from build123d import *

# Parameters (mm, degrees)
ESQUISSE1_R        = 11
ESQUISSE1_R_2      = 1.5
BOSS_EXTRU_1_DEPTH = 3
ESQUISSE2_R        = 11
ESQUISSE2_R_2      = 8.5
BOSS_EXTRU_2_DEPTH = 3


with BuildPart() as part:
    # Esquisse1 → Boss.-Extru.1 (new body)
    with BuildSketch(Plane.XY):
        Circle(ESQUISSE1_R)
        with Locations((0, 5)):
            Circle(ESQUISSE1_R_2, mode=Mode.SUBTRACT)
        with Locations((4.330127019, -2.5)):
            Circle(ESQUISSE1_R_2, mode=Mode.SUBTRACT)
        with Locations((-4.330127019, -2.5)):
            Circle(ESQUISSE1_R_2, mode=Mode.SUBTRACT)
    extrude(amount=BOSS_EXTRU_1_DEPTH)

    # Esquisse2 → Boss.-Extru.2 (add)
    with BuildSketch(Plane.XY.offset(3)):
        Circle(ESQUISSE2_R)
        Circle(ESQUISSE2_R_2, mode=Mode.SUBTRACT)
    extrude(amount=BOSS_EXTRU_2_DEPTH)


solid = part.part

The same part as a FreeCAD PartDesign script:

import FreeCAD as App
import Part
import Sketcher
Q = App.Units.Quantity

doc = App.newDocument("Part")
body = doc.addObject("PartDesign::Body", "Body")

sketch1 = body.newObject("Sketcher::SketchObject", "Sketch")
sketch1.AttachmentSupport = (doc.getObject("XY_Plane"), [""])
sketch1.MapMode = "FlatFace"
sketch1.addGeometry(Part.Circle(App.Vector(0, 0, 0), App.Vector(0, 0, 1), 11), False)
sketch1.addGeometry(Part.Circle(App.Vector(-4.3, -2.5, 0), App.Vector(0, 0, 1), 1.5), False)
sketch1.addGeometry(Part.Circle(App.Vector(4.3, -2.5, 0), App.Vector(0, 0, 1), 1.5), False)
sketch1.addGeometry(Part.Circle(App.Vector(0, 5, 0), App.Vector(0, 0, 1), 1.5), False)
sketch1.addConstraint(Sketcher.Constraint("Coincident", 0, 3, -1, 1))
sketch1.addConstraint(Sketcher.Constraint("Equal", 1, 2))
sketch1.addConstraint(Sketcher.Constraint("Equal", 2, 3))
sketch1.addConstraint(Sketcher.Constraint("Symmetric", 1, 3, 2, 3, -2))
sketch1.addConstraint(Sketcher.Constraint("PointOnObject", 3, 3, -2))
sketch1.addConstraint(Sketcher.Constraint("Diameter", 0, Q("22 mm")))
sketch1.addConstraint(Sketcher.Constraint("Diameter", 1, Q("3 mm")))
sketch1.addConstraint(Sketcher.Constraint("DistanceY", -1, 1, 3, 3, Q("5 mm")))
sketch1.addConstraint(Sketcher.Constraint("DistanceY", 1, 3, -1, 1, Q("2.5 mm")))
sketch1.addConstraint(Sketcher.Constraint("DistanceX", 1, 3, -1, 1, Q("4.330127 mm")))
pad1 = body.newObject("PartDesign::Pad", "Pad")
pad1.Profile = sketch1
pad1.Length = 3

sketch2 = body.newObject("Sketcher::SketchObject", "Sketch001")
sketch2.AttachmentSupport = (doc.getObject("XY_Plane"), [""])
sketch2.MapMode = "FlatFace"
sketch2.AttachmentOffset = App.Placement(App.Vector(0, 0, 3), App.Rotation())
sketch2.addGeometry(Part.Circle(App.Vector(0, 0, 0), App.Vector(0, 0, 1), 11), False)
sketch2.addGeometry(Part.Circle(App.Vector(0, 0, 0), App.Vector(0, 0, 1), 8), False)
sketch2.addConstraint(Sketcher.Constraint("Coincident", 0, 3, -1, 1))
sketch2.addConstraint(Sketcher.Constraint("Coincident", 1, 3, -1, 1))
sketch2.addConstraint(Sketcher.Constraint("Diameter", 0, Q("22 mm")))
sketch2.addConstraint(Sketcher.Constraint("Diameter", 1, Q("17 mm")))
pad2 = body.newObject("PartDesign::Pad", "Pad001")
pad2.Profile = sketch2
pad2.Length = 3

doc.recompute()
